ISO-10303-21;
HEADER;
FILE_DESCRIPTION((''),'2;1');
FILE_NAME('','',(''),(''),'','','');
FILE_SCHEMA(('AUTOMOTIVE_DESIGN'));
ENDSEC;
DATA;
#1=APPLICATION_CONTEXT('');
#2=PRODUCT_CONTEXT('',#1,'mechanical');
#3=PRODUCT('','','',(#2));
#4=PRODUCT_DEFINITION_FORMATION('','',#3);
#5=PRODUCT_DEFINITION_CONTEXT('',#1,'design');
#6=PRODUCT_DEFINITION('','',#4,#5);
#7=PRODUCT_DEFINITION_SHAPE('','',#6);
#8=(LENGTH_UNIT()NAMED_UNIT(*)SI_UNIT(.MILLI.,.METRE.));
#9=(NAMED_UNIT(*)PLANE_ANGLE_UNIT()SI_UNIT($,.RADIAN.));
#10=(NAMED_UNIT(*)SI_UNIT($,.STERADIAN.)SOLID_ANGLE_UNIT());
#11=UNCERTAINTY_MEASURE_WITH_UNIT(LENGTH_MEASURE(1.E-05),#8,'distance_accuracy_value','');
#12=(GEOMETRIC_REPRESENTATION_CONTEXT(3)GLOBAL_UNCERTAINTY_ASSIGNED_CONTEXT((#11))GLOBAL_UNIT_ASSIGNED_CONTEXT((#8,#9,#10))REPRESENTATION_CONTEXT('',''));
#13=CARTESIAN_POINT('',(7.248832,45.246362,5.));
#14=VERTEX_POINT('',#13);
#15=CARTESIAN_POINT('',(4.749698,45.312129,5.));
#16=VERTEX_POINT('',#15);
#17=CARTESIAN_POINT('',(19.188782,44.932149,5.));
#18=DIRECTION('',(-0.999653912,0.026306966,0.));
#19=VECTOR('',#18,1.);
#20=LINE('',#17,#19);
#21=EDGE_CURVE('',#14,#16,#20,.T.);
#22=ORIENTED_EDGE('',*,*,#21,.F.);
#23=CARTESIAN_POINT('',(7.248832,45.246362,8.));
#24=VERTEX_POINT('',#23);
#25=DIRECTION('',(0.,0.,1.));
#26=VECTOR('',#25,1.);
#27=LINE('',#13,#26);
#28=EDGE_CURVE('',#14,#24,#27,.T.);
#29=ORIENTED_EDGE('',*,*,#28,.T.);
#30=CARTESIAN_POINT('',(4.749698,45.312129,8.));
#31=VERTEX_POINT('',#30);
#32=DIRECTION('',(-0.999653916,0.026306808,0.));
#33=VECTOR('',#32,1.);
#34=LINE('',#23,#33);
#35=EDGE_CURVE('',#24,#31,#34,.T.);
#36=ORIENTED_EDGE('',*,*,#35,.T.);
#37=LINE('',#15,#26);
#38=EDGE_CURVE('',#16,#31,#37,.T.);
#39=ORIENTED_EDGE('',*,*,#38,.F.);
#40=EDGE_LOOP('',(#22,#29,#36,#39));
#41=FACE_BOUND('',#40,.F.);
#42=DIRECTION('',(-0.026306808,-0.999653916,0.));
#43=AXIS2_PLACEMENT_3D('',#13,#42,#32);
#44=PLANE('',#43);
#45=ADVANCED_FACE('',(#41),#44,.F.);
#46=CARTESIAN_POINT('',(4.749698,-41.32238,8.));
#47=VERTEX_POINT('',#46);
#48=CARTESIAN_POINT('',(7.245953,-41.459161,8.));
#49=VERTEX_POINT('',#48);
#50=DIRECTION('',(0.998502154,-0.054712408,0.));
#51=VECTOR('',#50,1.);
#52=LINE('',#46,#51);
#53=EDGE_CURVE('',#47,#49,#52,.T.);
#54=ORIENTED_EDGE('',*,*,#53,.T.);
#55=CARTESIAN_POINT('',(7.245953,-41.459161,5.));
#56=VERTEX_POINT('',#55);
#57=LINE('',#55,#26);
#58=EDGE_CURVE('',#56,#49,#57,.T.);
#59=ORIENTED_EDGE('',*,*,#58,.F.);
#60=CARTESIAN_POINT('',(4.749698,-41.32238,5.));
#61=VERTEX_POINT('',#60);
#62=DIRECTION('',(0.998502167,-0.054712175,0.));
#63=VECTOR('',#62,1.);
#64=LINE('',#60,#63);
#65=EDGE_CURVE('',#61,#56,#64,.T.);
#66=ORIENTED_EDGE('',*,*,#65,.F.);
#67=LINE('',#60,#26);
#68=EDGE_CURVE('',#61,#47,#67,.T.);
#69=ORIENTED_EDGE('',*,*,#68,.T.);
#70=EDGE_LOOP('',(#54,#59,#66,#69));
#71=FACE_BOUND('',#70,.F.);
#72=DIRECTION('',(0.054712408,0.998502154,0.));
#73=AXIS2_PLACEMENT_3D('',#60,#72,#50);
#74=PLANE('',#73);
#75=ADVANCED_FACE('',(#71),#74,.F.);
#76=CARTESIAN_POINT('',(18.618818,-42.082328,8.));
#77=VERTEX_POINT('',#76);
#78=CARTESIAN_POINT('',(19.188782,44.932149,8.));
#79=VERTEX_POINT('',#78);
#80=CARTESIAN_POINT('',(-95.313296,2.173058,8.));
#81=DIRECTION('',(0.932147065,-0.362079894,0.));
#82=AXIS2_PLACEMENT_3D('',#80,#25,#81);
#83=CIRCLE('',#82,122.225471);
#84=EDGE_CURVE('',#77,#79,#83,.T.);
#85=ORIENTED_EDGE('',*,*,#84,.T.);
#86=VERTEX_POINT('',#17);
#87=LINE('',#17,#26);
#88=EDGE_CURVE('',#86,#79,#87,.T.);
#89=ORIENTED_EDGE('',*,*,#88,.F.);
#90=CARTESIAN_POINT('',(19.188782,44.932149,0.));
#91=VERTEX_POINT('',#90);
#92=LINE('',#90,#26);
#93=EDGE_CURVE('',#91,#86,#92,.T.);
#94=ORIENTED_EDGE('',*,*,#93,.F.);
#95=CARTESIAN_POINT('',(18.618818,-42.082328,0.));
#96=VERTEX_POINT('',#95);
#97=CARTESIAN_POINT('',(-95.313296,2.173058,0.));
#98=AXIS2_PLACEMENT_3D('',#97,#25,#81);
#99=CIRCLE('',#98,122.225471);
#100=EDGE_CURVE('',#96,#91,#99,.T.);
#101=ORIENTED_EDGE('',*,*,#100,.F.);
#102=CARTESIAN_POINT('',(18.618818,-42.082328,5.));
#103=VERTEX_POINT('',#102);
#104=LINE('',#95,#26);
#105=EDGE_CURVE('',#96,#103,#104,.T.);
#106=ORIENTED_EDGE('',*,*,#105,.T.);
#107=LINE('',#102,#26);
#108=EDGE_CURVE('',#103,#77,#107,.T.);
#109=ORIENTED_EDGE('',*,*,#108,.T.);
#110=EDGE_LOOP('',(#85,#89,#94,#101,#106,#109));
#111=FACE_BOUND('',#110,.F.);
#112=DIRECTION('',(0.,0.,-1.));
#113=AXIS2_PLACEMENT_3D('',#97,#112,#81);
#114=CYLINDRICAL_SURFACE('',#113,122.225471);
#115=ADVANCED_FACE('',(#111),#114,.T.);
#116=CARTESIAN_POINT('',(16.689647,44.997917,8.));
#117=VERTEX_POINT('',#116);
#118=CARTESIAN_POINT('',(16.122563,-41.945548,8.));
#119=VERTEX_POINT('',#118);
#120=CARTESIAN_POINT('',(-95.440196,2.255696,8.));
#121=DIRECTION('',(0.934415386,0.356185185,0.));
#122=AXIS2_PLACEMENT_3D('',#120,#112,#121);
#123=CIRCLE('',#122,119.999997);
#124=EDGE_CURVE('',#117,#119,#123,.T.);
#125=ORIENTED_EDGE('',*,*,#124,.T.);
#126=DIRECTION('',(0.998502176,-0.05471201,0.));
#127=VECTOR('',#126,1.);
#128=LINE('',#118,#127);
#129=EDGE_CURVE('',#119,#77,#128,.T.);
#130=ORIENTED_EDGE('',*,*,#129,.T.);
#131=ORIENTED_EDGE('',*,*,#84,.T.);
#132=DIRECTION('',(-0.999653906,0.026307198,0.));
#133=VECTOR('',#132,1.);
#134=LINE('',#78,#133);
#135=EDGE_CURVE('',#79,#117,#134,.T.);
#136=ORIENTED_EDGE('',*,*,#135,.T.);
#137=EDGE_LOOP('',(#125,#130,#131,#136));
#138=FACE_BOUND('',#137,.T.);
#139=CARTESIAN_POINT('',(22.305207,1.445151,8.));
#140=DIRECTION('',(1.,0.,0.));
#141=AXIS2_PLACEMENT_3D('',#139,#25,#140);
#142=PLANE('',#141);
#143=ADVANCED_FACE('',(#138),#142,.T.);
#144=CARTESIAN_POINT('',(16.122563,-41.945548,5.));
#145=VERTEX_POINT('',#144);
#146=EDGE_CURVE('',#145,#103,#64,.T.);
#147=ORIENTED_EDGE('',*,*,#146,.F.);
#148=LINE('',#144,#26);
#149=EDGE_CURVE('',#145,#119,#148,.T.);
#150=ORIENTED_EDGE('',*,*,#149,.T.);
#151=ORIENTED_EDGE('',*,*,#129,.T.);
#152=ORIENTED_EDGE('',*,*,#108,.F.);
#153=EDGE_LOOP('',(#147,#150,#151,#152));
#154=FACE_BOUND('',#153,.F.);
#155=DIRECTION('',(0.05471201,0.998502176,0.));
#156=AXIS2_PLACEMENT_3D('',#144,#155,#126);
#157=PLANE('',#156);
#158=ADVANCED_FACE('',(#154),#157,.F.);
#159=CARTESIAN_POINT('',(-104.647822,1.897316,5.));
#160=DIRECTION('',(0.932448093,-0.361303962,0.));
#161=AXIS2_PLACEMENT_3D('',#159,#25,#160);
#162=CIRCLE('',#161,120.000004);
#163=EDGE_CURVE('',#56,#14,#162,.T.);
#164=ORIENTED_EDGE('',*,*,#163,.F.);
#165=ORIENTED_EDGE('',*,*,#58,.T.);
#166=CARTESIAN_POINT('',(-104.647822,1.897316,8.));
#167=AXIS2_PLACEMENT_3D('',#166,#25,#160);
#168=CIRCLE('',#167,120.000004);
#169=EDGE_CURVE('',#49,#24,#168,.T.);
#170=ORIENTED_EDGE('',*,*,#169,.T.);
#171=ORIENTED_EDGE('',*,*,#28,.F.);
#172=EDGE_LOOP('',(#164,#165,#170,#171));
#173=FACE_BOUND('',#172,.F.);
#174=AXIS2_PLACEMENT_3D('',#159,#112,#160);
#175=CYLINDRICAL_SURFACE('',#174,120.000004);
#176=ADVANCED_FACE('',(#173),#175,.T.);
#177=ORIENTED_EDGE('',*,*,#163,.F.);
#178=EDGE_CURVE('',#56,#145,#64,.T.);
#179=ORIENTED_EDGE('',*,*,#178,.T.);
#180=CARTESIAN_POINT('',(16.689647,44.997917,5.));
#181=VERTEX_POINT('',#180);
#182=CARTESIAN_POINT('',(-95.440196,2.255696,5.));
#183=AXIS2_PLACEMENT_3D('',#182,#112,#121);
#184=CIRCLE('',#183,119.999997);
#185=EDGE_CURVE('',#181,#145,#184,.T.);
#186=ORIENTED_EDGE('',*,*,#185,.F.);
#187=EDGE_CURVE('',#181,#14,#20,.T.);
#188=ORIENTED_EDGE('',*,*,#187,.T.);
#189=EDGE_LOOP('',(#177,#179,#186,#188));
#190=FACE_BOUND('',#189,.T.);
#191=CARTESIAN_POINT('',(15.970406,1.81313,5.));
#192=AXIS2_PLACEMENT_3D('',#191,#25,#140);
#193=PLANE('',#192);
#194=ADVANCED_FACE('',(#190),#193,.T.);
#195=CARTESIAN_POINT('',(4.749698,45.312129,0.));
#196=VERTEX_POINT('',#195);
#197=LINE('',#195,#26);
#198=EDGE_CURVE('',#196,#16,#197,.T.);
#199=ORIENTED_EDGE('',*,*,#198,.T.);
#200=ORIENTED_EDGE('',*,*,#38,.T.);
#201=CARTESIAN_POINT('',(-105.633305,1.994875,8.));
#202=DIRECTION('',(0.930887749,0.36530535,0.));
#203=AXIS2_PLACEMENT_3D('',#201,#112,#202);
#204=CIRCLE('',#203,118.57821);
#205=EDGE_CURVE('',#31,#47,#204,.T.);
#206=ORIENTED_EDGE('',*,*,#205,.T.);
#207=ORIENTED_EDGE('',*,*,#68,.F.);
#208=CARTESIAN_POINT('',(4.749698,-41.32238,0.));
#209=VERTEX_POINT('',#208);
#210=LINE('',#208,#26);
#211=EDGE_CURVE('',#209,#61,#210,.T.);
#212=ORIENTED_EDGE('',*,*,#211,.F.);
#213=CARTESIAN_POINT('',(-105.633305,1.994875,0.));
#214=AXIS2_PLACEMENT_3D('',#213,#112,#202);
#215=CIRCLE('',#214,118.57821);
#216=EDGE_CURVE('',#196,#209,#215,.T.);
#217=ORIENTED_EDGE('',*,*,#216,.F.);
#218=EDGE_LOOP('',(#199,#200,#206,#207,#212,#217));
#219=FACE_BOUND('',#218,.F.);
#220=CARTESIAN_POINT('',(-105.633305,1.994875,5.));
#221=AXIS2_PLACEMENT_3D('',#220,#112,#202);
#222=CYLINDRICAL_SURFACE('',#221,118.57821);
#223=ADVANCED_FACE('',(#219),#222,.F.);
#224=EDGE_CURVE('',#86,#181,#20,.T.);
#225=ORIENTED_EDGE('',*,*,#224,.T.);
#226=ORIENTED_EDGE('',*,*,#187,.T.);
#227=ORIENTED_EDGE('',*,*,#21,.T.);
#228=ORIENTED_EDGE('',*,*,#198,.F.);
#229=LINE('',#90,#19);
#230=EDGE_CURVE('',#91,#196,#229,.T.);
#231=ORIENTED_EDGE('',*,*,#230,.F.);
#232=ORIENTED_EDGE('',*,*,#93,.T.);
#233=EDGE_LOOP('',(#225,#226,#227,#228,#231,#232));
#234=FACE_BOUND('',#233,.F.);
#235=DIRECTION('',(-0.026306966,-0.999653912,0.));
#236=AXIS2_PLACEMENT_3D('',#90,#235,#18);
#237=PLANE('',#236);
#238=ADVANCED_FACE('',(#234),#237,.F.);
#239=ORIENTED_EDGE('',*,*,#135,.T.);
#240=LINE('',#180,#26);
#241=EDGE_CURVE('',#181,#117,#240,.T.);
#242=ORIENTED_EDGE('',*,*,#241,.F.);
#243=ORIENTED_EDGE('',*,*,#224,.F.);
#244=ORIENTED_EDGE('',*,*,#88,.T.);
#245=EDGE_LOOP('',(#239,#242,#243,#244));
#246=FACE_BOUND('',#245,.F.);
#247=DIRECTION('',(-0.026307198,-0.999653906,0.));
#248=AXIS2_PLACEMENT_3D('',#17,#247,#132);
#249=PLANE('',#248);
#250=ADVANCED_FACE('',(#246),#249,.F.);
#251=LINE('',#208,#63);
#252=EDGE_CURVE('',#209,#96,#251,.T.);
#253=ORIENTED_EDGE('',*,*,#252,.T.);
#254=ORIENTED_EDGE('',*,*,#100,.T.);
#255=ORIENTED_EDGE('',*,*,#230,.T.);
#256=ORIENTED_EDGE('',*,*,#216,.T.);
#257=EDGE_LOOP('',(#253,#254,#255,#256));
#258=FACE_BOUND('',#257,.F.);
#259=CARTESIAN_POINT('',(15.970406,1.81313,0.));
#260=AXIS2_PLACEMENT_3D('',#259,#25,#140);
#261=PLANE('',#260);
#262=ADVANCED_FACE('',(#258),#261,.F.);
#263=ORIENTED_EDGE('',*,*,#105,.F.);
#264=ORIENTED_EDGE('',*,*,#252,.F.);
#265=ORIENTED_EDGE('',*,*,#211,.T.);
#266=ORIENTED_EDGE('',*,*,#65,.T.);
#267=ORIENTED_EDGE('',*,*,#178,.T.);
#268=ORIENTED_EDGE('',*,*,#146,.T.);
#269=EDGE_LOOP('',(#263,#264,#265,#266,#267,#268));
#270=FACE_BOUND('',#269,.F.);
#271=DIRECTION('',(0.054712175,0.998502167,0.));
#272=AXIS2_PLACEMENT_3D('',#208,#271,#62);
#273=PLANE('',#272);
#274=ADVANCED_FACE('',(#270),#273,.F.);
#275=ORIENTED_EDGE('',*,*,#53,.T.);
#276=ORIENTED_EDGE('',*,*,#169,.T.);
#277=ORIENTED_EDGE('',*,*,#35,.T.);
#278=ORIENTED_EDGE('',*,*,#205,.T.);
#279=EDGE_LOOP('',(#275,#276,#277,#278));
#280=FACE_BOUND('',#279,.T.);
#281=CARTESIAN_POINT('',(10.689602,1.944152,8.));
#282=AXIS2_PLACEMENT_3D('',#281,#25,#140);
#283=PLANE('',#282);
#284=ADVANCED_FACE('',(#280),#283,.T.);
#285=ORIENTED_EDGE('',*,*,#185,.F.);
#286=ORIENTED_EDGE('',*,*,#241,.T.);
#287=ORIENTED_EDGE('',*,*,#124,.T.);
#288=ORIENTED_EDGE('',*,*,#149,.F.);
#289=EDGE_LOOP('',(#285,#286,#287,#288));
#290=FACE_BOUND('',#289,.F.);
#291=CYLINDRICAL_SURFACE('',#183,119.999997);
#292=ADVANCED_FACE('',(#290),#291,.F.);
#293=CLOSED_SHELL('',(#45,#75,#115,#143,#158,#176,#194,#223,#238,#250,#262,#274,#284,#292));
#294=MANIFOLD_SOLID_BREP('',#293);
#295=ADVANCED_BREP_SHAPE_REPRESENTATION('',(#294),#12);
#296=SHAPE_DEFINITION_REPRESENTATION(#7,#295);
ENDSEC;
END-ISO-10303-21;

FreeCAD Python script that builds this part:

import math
import FreeCAD as App
import Part
import Sketcher

V = App.Vector

doc = App.newDocument("Part")
body = doc.addObject("PartDesign::Body", "Body")

# Sketch on XY plane
sketch1 = body.newObject("Sketcher::SketchObject", "Sketch")
sketch1.AttachmentSupport = (doc.getObject("XY_Plane"), [""])
sketch1.MapMode = "FlatFace"
sketch1.addGeometry([
    Part.ArcOfCircle(Part.Circle(V(-105.633305, 1.994875, 0), V(0, 0, 1), 118.57821), math.radians(-21.426376), math.radians(21.426376)),
    Part.LineSegment(V(4.749698, -41.32238, 0), V(18.618818, -42.082328, 0)),
    Part.ArcOfCircle(Part.Circle(V(-95.313296, 2.173058, 0), V(0, 0, 1), 122.225471), math.radians(-21.227985), math.radians(20.477395)),
    Part.LineSegment(V(19.188782, 44.932149, 0), V(4.749698, 45.312129, 0)),
], False)
sketch1.addConstraint([
    Sketcher.Constraint("Coincident", 0, 1, 1, 1),
    Sketcher.Constraint("Coincident", 1, 2, 2, 1),
    Sketcher.Constraint("Coincident", 2, 2, 3, 1),
    Sketcher.Constraint("Coincident", 3, 2, 0, 2),
    Sketcher.Constraint("Vertical", 0, 1, 3, 2),
    Sketcher.Constraint("Radius", 0, 118.57821),
    Sketcher.Constraint("Radius", 2, 122.225471),
    Sketcher.Constraint("DistanceX", -1, 1, 0, 1, 4.749698),
    Sketcher.Constraint("DistanceY", 0, 1, -1, 1, 41.32238),
    Sketcher.Constraint("DistanceX", -1, 1, 1, 2, 18.618818),
    Sketcher.Constraint("DistanceY", -1, 1, 2, 2, 44.932149),
    Sketcher.Constraint("DistanceY", -1, 1, 3, 2, 45.312129),
    Sketcher.Constraint("DistanceX", 0, 3, 2, 3, 10.320009),
    Sketcher.Constraint("DistanceX", 2, 3, 2, 2, 114.502078),
])
pad1 = body.newObject("PartDesign::Pad", "Pad")
pad1.Profile = sketch1
pad1.Length = 5

# Sketch on XY plane
sketch2 = body.newObject("Sketcher::SketchObject", "Sketch001")
sketch2.AttachmentSupport = (doc.getObject("XY_Plane"), [""])
sketch2.MapMode = "FlatFace"
sketch2.AttachmentOffset = App.Placement(V(0, 0, 5), App.Rotation())
sketch2.addGeometry([
    Part.LineSegment(V(4.749698, -41.32238, 0), V(7.245953, -41.459161, 0)),  # 0
    Part.ArcOfCircle(Part.Circle(V(-104.647822, 1.897316, 0), V(0, 0, 1), 120.000004), math.radians(-21.180298), math.radians(21.176493)),  # 1
    Part.LineSegment(V(7.248832, 45.246362, 0), V(4.749698, 45.312129, 0)),  # 2
    Part.ArcOfCircle(Part.Circle(V(-105.633305, 1.994875, 0), V(0, 0, 1), 118.57821), math.radians(-21.426376), math.radians(21.426376)),  # 3
    Part.ArcOfCircle(Part.Circle(V(-95.440196, 2.255696, 0), V(0, 0, 1), 119.999997), math.radians(-21.613506), math.radians(20.866099)),  # 4
    Part.LineSegment(V(16.122563, -41.945548, 0), V(18.618818, -42.082328, 0)),  # 5
    Part.ArcOfCircle(Part.Circle(V(-95.313296, 2.173058, 0), V(0, 0, 1), 122.225471), math.radians(-21.227985), math.radians(20.477395)),  # 6
    Part.LineSegment(V(19.188782, 44.932149, 0), V(16.689647, 44.997917, 0)),  # 7
], False)
sketch2.addConstraint([
    Sketcher.Constraint("Coincident", 0, 2, 1, 1),
    Sketcher.Constraint("Coincident", 1, 2, 2, 1),
    Sketcher.Constraint("Coincident", 2, 2, 3, 2),
    Sketcher.Constraint("Coincident", 3, 1, 0, 1),
    Sketcher.Constraint("Coincident", 4, 1, 5, 1),
    Sketcher.Constraint("Coincident", 5, 2, 6, 1),
    Sketcher.Constraint("Coincident", 6, 2, 7, 1),
    Sketcher.Constraint("Coincident", 7, 2, 4, 2),
    Sketcher.Constraint("Parallel", 0, 5),
    Sketcher.Constraint("Parallel", 2, 7),
    Sketcher.Constraint("Vertical", 2, 2, 3, 1),
    Sketcher.Constraint("Equal", 0, 2),
    Sketcher.Constraint("Equal", 2, 5),
    Sketcher.Constraint("Equal", 5, 7),
    Sketcher.Constraint("Distance", 0, 2.5),
    Sketcher.Constraint("Radius", 3, 118.57821),
    Sketcher.Constraint("Radius", 6, 122.225471),
    Sketcher.Constraint("Radius", 1, 120.000004),
    Sketcher.Constraint("Radius", 4, 119.999997),
    Sketcher.Constraint("DistanceX", -1, 1, 2, 2, 4.749698),
    Sketcher.Constraint("DistanceX", 4, 3, 6, 3, 0.1269),
    Sketcher.Constraint("DistanceX", 1, 3, -1, 1, 104.647822),
    Sketcher.Constraint("DistanceY", 0, 2, -1, 1, 41.459161),
    Sketcher.Constraint("DistanceY", -1, 1, 2, 2, 45.312129),
    Sketcher.Constraint("DistanceY", 4, 1, -1, 1, 41.945548),
    Sketcher.Constraint("DistanceX", -1, 1, 5, 2, 18.618818),
    Sketcher.Constraint("DistanceY", -1, 1, 6, 2, 44.932149),
    Sketcher.Constraint("DistanceY", 1, 3, 4, 3, 0.35838),
])
pad2 = body.newObject("PartDesign::Pad", "Pad001")
pad2.Profile = sketch2
pad2.Length = 3

doc.recompute()
